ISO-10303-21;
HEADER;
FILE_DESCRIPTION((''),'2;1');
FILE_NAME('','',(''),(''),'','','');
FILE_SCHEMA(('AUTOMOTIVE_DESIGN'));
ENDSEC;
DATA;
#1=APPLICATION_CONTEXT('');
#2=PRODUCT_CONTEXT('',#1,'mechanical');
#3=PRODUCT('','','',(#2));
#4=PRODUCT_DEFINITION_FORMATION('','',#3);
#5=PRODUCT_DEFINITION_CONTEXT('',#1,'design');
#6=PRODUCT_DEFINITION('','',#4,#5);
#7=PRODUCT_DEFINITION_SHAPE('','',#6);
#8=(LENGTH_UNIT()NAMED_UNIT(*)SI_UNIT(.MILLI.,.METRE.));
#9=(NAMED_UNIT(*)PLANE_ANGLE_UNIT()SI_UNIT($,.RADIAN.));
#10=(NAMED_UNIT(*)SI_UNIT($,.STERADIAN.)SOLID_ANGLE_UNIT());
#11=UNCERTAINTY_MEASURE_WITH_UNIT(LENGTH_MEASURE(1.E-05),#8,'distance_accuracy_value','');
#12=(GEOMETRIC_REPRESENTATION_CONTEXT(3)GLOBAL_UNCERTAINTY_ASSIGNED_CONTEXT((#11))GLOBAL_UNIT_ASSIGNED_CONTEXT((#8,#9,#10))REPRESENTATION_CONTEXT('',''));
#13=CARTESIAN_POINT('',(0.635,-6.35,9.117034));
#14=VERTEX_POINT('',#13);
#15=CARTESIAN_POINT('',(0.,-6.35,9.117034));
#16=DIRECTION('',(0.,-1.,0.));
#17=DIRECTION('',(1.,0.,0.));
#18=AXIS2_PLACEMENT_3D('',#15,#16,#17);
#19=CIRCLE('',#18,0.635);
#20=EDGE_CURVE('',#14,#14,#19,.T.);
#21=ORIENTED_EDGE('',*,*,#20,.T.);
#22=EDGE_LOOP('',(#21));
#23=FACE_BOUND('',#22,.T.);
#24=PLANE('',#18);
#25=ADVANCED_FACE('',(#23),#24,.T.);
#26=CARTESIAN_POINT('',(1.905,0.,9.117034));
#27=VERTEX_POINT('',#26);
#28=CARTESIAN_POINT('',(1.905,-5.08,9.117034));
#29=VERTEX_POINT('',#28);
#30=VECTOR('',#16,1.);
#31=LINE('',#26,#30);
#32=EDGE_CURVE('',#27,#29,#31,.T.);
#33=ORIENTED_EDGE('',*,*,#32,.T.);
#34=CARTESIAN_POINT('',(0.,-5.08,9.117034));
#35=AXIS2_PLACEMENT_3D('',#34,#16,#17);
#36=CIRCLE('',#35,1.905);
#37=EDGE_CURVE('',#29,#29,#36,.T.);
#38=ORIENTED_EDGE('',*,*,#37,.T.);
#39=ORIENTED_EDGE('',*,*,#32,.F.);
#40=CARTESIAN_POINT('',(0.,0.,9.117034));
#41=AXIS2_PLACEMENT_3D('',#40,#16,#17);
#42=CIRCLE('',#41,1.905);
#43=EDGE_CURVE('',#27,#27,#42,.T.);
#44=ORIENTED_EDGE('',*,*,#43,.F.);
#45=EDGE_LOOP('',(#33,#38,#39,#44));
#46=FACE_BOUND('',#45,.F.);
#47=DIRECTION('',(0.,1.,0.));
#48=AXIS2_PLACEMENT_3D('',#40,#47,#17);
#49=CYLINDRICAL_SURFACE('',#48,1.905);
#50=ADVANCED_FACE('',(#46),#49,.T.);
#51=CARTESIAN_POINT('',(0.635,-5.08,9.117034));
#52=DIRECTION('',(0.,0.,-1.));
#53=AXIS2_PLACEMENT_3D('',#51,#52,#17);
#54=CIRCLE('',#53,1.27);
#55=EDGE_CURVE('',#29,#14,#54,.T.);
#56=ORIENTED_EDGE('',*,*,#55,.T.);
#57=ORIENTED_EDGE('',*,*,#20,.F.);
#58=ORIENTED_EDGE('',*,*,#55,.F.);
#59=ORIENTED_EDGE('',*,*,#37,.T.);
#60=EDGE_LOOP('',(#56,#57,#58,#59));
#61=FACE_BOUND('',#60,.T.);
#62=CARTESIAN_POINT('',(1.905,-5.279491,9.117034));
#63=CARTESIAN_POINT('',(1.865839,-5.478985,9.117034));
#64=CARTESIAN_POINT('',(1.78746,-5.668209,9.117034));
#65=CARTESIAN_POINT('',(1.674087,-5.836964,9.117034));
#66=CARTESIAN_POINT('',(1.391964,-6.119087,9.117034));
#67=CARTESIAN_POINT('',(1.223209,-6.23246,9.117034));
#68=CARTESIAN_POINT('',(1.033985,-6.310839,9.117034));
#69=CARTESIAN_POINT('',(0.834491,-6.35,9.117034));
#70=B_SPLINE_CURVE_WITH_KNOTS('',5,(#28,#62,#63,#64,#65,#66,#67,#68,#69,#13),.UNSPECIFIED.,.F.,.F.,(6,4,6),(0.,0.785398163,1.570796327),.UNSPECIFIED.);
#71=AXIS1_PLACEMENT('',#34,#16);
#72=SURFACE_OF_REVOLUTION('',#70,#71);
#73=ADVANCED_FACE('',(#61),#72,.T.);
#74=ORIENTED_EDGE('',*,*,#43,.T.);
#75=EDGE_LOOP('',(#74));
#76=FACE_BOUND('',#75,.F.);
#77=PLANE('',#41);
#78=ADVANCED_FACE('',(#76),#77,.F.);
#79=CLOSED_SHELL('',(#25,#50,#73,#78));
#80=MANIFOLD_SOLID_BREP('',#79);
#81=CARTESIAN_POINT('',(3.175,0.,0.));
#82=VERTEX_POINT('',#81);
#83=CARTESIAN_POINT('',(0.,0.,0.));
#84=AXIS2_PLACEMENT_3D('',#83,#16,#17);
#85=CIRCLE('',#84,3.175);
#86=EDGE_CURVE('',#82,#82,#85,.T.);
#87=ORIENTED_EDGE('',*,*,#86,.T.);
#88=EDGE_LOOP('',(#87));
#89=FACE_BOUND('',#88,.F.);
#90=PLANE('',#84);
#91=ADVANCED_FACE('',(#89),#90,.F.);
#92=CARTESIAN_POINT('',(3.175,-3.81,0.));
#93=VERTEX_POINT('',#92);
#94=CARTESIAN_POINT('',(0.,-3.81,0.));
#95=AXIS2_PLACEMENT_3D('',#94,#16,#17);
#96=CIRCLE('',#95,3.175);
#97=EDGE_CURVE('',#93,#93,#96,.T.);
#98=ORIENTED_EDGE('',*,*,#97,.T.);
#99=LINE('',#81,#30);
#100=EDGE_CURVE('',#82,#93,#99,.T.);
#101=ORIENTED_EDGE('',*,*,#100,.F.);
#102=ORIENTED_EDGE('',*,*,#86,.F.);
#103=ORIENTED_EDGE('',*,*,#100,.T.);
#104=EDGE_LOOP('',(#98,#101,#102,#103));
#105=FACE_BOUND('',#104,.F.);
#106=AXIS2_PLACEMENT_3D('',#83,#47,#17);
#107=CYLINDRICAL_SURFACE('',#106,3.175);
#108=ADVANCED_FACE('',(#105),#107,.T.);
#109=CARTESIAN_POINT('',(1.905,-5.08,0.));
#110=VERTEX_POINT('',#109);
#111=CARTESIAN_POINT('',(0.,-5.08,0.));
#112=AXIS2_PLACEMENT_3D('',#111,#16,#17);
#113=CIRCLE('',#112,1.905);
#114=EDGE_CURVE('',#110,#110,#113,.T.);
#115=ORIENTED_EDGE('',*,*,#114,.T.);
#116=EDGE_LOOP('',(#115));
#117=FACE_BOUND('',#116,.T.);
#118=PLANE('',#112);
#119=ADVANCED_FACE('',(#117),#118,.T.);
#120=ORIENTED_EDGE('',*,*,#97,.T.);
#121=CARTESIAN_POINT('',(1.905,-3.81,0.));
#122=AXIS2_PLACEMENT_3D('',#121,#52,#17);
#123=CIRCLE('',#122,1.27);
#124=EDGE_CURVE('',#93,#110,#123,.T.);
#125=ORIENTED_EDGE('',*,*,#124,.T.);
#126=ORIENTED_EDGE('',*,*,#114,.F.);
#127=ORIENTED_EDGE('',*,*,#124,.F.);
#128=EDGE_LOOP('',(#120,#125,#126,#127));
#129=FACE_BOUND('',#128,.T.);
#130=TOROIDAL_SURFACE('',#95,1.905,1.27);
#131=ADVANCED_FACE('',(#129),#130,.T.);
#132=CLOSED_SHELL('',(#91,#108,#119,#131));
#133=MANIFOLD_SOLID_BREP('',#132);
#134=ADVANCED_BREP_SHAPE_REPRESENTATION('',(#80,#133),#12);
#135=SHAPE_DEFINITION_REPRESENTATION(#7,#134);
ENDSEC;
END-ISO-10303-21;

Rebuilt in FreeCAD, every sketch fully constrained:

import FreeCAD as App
import Part
import Sketcher
Q = App.Units.Quantity


def edges_at(feature, points):
    """Names of the edges that pass closest to the given points."""
    edges = feature.Shape.Edges
    near = lambda p: min(range(len(edges)), key=lambda i: edges[i].distToShape(Part.Vertex(*p))[0])
    return sorted({f"Edge{near(p) + 1}" for p in points})

doc = App.newDocument("Part")
body = doc.addObject("PartDesign::Body", "Body")

# Sketch on XZ plane
sketch1 = doc.addObject("Sketcher::SketchObject", "Sketch")
body.addObject(sketch1)
sketch1.AttachmentSupport = (doc.XZ_Plane, [""])
sketch1.MapMode = "FlatFace"
sketch1.addGeometry(Part.Circle(App.Vector(0, 0, 0), App.Vector(0, 0, 1), 3.2), False)
sketch1.addConstraint([
    Sketcher.Constraint("Coincident", 0, 3, -1, 1),
    Sketcher.Constraint("Diameter", 0, Q("0.25 in")),
])
pad1 = doc.addObject("PartDesign::Pad", "Pad")
body.addObject(pad1)
pad1.Profile = sketch1
pad1.Length = Q("0.2 in")
doc.recompute()

fillet = doc.addObject("PartDesign::Fillet", "Fillet")
body.addObject(fillet)
fillet.Base = (pad1, edges_at(pad1, [(-3.175, -5.08, 0)]))
fillet.Radius = Q("0.05 in")
body2 = doc.addObject("PartDesign::Body", "Body001")

# Sketch on XZ plane
sketch2 = doc.addObject("Sketcher::SketchObject", "Sketch001")
body2.addObject(sketch2)
sketch2.AttachmentSupport = (doc.getObject("XZ_Plane001"), [""])
sketch2.MapMode = "FlatFace"
sketch2.addGeometry(Part.Circle(App.Vector(0, 9.1, 0), App.Vector(0, 0, 1), 1.9), False)
sketch2.addConstraint([
    Sketcher.Constraint("PointOnObject", 0, 3, -2),
    Sketcher.Constraint("Diameter", 0, Q("0.15 in")),
    Sketcher.Constraint("DistanceY", -1, 1, 0, 3, 9.117034),
])
pad2 = doc.addObject("PartDesign::Pad", "Pad001")
body2.addObject(pad2)
pad2.Profile = sketch2
pad2.Length = Q("0.25 in")
doc.recompute()

fillet2 = doc.addObject("PartDesign::Fillet", "Fillet001")
body2.addObject(fillet2)
fillet2.Base = (pad2, edges_at(pad2, [(-1.905, -6.35, 9.117)]))
fillet2.Radius = Q("0.05 in")

doc.recompute()
